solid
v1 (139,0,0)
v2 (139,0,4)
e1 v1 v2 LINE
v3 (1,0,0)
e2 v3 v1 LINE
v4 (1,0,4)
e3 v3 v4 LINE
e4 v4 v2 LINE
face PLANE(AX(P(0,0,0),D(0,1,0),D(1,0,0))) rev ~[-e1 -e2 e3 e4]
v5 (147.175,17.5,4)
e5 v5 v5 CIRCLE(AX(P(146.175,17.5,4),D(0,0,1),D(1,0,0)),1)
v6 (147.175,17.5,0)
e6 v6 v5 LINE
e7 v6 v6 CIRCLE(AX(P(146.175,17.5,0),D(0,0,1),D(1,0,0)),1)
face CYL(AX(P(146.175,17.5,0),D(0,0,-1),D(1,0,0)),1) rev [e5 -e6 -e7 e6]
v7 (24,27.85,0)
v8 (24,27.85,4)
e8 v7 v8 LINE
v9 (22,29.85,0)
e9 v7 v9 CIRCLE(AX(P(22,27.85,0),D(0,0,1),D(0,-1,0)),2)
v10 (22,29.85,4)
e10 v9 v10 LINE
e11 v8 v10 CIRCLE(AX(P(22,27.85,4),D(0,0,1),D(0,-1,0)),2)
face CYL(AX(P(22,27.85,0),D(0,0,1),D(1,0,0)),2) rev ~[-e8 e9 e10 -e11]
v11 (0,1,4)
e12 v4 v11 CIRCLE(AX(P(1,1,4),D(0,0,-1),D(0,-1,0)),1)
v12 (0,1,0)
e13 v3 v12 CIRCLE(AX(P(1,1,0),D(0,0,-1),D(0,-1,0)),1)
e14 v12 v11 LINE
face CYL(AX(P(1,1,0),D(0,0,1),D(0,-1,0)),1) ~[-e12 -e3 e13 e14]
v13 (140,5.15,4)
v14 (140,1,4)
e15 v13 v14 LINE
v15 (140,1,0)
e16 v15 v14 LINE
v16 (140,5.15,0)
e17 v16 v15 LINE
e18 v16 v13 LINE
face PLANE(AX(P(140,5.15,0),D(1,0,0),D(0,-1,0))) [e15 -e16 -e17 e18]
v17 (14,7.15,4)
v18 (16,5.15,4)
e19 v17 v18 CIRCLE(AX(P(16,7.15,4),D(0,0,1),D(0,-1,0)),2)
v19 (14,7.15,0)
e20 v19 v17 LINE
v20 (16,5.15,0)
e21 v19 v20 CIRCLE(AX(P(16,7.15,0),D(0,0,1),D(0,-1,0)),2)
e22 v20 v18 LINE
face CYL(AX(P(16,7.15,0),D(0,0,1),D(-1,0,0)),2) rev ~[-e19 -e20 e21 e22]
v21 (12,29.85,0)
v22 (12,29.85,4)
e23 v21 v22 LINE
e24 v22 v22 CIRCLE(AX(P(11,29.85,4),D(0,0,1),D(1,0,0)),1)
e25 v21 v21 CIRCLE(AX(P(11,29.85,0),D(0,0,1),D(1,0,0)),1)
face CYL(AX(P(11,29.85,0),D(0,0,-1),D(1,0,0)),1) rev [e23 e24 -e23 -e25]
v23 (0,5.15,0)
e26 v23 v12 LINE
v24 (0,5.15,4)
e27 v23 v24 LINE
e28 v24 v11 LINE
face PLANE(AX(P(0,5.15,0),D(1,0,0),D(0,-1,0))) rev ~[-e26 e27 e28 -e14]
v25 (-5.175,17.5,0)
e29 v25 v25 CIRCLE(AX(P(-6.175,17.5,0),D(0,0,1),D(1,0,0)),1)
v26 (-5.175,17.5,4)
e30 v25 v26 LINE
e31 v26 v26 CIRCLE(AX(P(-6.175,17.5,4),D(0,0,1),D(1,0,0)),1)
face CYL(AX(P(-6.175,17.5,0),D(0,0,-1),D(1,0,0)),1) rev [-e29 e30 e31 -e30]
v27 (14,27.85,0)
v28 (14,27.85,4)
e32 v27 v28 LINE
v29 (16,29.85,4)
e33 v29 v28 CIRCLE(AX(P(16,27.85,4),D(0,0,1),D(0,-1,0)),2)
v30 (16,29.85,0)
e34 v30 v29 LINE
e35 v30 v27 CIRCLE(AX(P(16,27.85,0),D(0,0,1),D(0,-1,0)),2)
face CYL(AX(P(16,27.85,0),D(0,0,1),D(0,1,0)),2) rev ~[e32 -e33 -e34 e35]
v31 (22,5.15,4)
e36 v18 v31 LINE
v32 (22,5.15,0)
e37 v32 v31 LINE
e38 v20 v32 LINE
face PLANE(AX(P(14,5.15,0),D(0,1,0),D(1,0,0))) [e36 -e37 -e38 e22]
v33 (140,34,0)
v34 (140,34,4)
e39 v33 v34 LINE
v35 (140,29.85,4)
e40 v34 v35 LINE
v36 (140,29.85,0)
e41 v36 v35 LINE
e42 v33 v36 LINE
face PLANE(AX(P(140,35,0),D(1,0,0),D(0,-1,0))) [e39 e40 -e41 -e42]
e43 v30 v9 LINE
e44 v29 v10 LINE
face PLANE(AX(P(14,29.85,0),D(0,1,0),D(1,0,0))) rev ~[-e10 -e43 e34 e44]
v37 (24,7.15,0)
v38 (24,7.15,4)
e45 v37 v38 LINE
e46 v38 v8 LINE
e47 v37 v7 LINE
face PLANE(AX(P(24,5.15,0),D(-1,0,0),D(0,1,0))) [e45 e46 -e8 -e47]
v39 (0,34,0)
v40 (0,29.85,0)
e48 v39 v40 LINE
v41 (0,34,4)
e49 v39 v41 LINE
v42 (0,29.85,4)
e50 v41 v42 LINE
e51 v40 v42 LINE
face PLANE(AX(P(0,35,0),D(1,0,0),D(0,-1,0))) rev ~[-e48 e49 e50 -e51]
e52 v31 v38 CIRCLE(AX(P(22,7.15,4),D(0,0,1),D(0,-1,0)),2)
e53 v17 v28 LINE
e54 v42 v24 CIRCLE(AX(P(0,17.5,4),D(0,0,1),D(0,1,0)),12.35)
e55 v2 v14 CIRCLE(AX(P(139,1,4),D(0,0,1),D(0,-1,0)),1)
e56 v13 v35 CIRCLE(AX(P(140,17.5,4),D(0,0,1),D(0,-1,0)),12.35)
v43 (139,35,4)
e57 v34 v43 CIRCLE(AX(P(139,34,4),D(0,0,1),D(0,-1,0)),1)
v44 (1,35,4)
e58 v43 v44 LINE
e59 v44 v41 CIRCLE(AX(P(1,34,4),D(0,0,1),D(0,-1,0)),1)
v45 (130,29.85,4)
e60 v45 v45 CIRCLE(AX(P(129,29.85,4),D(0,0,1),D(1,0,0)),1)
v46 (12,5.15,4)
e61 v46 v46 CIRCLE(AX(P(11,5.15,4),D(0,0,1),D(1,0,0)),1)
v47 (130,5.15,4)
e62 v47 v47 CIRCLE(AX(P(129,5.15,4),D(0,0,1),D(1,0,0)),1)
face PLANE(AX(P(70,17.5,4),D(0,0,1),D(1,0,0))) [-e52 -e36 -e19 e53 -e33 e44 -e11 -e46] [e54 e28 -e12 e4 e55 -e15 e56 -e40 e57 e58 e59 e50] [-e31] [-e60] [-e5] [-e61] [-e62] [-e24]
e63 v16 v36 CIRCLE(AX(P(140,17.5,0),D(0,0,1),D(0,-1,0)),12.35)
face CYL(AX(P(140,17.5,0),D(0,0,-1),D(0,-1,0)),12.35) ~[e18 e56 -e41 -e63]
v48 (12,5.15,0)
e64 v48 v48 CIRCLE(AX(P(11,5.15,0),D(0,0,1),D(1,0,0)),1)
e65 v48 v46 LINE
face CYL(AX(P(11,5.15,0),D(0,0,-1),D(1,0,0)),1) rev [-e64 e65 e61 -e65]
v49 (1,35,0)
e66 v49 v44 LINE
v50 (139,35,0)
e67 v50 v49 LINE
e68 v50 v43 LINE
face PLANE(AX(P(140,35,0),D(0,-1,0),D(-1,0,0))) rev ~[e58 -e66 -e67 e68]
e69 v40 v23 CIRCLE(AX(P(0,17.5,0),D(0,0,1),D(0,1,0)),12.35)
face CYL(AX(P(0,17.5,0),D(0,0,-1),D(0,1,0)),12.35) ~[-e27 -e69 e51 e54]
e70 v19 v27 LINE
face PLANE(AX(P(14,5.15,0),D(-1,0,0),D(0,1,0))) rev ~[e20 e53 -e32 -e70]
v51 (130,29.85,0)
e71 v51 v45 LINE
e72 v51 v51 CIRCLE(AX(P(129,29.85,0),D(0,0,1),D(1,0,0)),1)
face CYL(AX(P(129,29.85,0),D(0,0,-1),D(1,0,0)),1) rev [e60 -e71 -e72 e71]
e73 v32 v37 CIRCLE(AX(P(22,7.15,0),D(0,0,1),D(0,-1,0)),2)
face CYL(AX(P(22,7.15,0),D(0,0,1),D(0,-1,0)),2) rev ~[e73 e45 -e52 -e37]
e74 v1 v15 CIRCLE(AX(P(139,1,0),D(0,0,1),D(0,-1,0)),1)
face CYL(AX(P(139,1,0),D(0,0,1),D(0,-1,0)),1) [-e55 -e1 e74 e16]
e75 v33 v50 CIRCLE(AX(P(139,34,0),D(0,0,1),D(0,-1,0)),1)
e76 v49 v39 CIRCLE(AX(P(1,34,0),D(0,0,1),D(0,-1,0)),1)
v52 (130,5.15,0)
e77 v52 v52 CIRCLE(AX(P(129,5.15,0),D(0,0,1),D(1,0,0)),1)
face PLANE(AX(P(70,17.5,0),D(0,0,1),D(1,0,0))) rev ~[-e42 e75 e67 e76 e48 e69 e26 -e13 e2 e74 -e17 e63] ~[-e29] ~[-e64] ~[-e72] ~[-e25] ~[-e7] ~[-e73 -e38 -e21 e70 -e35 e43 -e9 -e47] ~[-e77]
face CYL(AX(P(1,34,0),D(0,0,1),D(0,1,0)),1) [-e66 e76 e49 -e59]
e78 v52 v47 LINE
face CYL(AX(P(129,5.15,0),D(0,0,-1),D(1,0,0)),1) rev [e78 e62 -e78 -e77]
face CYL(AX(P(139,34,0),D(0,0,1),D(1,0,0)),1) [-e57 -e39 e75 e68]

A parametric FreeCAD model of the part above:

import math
import FreeCAD as App
import Part
import Sketcher
from FreeCAD import Vector


def edges_at(feature, points):
    """Names of the edges that pass closest to the given points."""
    edges = feature.Shape.Edges
    near = lambda p: min(range(len(edges)), key=lambda i: edges[i].distToShape(Part.Vertex(*p))[0])
    return sorted({f"Edge{near(p) + 1}" for p in points})

doc = App.newDocument("Part")
body = doc.addObject("PartDesign::Body", "Body")

sketch1 = body.newObject("Sketcher::SketchObject", "Sketch")
sketch1.AttachmentSupport = (doc.getObject("XY_Plane"), [""])
sketch1.MapMode = "FlatFace"
sketch1.addGeometry(Part.LineSegment(Vector(0, 0, 0), Vector(140, 0, 0)), False)
sketch1.addGeometry(Part.LineSegment(Vector(140, 0, 0), Vector(140, 5.15, 0)), False)
sketch1.addGeometry(Part.ArcOfCircle(Part.Circle(Vector(140, 17.5, 0), Vector(0, 0, 1), 12.35), math.radians(-90), math.radians(90)), False)
sketch1.addGeometry(Part.LineSegment(Vector(140, 29.85, 0), Vector(140, 35, 0)), False)
sketch1.addGeometry(Part.LineSegment(Vector(140, 35, 0), Vector(0, 35, 0)), False)
sketch1.addGeometry(Part.LineSegment(Vector(0, 35, 0), Vector(0, 29.85, 0)), False)
sketch1.addGeometry(Part.ArcOfCircle(Part.Circle(Vector(0, 17.5, 0), Vector(0, 0, 1), 12.35), math.radians(90), math.radians(270)), False)
sketch1.addGeometry(Part.LineSegment(Vector(0, 5.15, 0), Vector(0, 0, 0)), False)
sketch1.addGeometry(Part.Circle(Vector(11, 5.15, 0), Vector(0, 0, 1), 1), False)
sketch1.addGeometry(Part.Circle(Vector(-6.175, 17.5, 0), Vector(0, 0, 1), 1), False)
sketch1.addGeometry(Part.Circle(Vector(129, 5.15, 0), Vector(0, 0, 1), 1), False)
sketch1.addGeometry(Part.Circle(Vector(146.175, 17.5, 0), Vector(0, 0, 1), 1), False)
sketch1.addGeometry(Part.LineSegment(Vector(24, 5.15, 0), Vector(14, 5.15, 0)), False)
sketch1.addGeometry(Part.LineSegment(Vector(14, 5.15, 0), Vector(14, 29.85, 0)), False)
sketch1.addGeometry(Part.LineSegment(Vector(14, 29.85, 0), Vector(24, 29.85, 0)), False)
sketch1.addGeometry(Part.LineSegment(Vector(24, 29.85, 0), Vector(24, 5.15, 0)), False)
sketch1.addGeometry(Part.Circle(Vector(11, 29.85, 0), Vector(0, 0, 1), 1), False)
sketch1.addGeometry(Part.Circle(Vector(129, 29.85, 0), Vector(0, 0, 1), 1), False)
sketch1.addConstraint(Sketcher.Constraint("Coincident", 0, 2, 1, 1))
sketch1.addConstraint(Sketcher.Constraint("Coincident", 1, 2, 2, 1))
sketch1.addConstraint(Sketcher.Constraint("Coincident", 2, 2, 3, 1))
sketch1.addConstraint(Sketcher.Constraint("Coincident", 3, 2, 4, 1))
sketch1.addConstraint(Sketcher.Constraint("Coincident", 4, 2, 5, 1))
sketch1.addConstraint(Sketcher.Constraint("Coincident", 5, 2, 6, 1))
sketch1.addConstraint(Sketcher.Constraint("Coincident", 6, 2, 7, 1))
sketch1.addConstraint(Sketcher.Constraint("Coincident", 7, 2, 0, 1))
sketch1.addConstraint(Sketcher.Constraint("Coincident", 12, 2, 13, 1))
sketch1.addConstraint(Sketcher.Constraint("Coincident", 13, 2, 14, 1))
sketch1.addConstraint(Sketcher.Constraint("Coincident", 14, 2, 15, 1))
sketch1.addConstraint(Sketcher.Constraint("Coincident", 15, 2, 12, 1))
sketch1.addConstraint(Sketcher.Constraint("Horizontal", 0))
sketch1.addConstraint(Sketcher.Constraint("Vertical", 1))
sketch1.addConstraint(Sketcher.Constraint("Vertical", 3))
sketch1.addConstraint(Sketcher.Constraint("Horizontal", 4))
sketch1.addConstraint(Sketcher.Constraint("Vertical", 5))
sketch1.addConstraint(Sketcher.Constraint("Vertical", 7))
sketch1.addConstraint(Sketcher.Constraint("Horizontal", 12))
sketch1.addConstraint(Sketcher.Constraint("Vertical", 13))
sketch1.addConstraint(Sketcher.Constraint("Horizontal", 14))
sketch1.addConstraint(Sketcher.Constraint("Vertical", 15))
sketch1.addConstraint(Sketcher.Constraint("Coincident", 7, 2, -1, 1))
sketch1.addConstraint(Sketcher.Constraint("Equal", 2, 6))
sketch1.addConstraint(Sketcher.Constraint("Equal", 8, 9))
sketch1.addConstraint(Sketcher.Constraint("Equal", 9, 10))
sketch1.addConstraint(Sketcher.Constraint("Equal", 10, 11))
sketch1.addConstraint(Sketcher.Constraint("Equal", 11, 16))
sketch1.addConstraint(Sketcher.Constraint("Equal", 16, 17))
sketch1.addConstraint(Sketcher.Constraint("PointOnObject", 6, 3, -2))
sketch1.addConstraint(Sketcher.Constraint("PointOnObject", 4, 2, -2))
sketch1.addConstraint(Sketcher.Constraint("Horizontal", 2, 3, 6, 3))
sketch1.addConstraint(Sketcher.Constraint("Horizontal", 6, 3, 9, 3))
sketch1.addConstraint(Sketcher.Constraint("Horizontal", 8, 3, 10, 3))
sketch1.addConstraint(Sketcher.Constraint("Horizontal", 9, 3, 11, 3))
sketch1.addConstraint(Sketcher.Constraint("Horizontal", 16, 3, 17, 3))
sketch1.addConstraint(Sketcher.Constraint("Horizontal", 10, 3, 1, 2))
sketch1.addConstraint(Sketcher.Constraint("Horizontal", 17, 3, 2, 2))
sketch1.addConstraint(Sketcher.Constraint("Horizontal", 6, 2, 12, 2))
sketch1.addConstraint(Sketcher.Constraint("Horizontal", 5, 2, 13, 2))
sketch1.addConstraint(Sketcher.Constraint("Vertical", 8, 3, 16, 3))
sketch1.addConstraint(Sketcher.Constraint("Vertical", 10, 3, 17, 3))
sketch1.addConstraint(Sketcher.Constraint("Vertical", 2, 3, 0, 2))
sketch1.addConstraint(Sketcher.Constraint("Vertical", 1, 2, 2, 2))
sketch1.addConstraint(Sketcher.Constraint("Equal", 1, 3))
sketch1.addConstraint(Sketcher.Constraint("Diameter", 8, 2.0))
sketch1.addConstraint(Sketcher.Constraint("DistanceX", 0, 1, 0, 2, 140.0))
sketch1.addConstraint(Sketcher.Constraint("DistanceX", 12, 2, 12, 1, 10.0))
sketch1.addConstraint(Sketcher.Constraint("Radius", 2, 12.35))
sketch1.addConstraint(Sketcher.Constraint("DistanceX", -1, 1, 8, 3, 11.0))
sketch1.addConstraint(Sketcher.Constraint("DistanceX", -1, 1, 10, 3, 129.0))
sketch1.addConstraint(Sketcher.Constraint("DistanceY", -1, 1, 3, 2, 35.0))
sketch1.addConstraint(Sketcher.Constraint("DistanceX", -1, 1, 12, 2, 14.0))
sketch1.addConstraint(Sketcher.Constraint("DistanceX", 9, 3, 11, 3, 152.35))
sketch1.addConstraint(Sketcher.Constraint("DistanceX", 9, 3, -1, 1, 6.175))
pad1 = body.newObject("PartDesign::Pad", "Pad")
pad1.Profile = sketch1
pad1.Length = 4
doc.recompute()

fillet = body.newObject("PartDesign::Fillet", "Fillet")
fillet.Base = (pad1, edges_at(pad1, [(140, 0, 2)]))
fillet.Radius = 1
doc.recompute()

fillet2 = body.newObject("PartDesign::Fillet", "Fillet001")
fillet2.Base = (fillet, edges_at(fillet, [(0, 0, 2)]))
fillet2.Radius = 1
doc.recompute()

fillet3 = body.newObject("PartDesign::Fillet", "Fillet002")
fillet3.Base = (fillet2, edges_at(fillet2, [(140, 35, 2)]))
fillet3.Radius = 1
doc.recompute()

fillet4 = body.newObject("PartDesign::Fillet", "Fillet003")
fillet4.Base = (fillet3, edges_at(fillet3, [(0, 35, 2)]))
fillet4.Radius = 1
doc.recompute()

fillet5 = body.newObject("PartDesign::Fillet", "Fillet004")
fillet5.Base = (fillet4, edges_at(fillet4, [(14, 29.85, 2)]))
fillet5.Radius = 2
doc.recompute()

fillet6 = body.newObject("PartDesign::Fillet", "Fillet005")
fillet6.Base = (fillet5, edges_at(fillet5, [(14, 5.15, 2)]))
fillet6.Radius = 2
doc.recompute()

fillet7 = body.newObject("PartDesign::Fillet", "Fillet006")
fillet7.Base = (fillet6, edges_at(fillet6, [(24, 5.15, 2)]))
fillet7.Radius = 2
doc.recompute()

fillet8 = body.newObject("PartDesign::Fillet", "Fillet007")
fillet8.Base = (fillet7, edges_at(fillet7, [(24, 29.85, 2)]))
fillet8.Radius = 2

doc.recompute()
